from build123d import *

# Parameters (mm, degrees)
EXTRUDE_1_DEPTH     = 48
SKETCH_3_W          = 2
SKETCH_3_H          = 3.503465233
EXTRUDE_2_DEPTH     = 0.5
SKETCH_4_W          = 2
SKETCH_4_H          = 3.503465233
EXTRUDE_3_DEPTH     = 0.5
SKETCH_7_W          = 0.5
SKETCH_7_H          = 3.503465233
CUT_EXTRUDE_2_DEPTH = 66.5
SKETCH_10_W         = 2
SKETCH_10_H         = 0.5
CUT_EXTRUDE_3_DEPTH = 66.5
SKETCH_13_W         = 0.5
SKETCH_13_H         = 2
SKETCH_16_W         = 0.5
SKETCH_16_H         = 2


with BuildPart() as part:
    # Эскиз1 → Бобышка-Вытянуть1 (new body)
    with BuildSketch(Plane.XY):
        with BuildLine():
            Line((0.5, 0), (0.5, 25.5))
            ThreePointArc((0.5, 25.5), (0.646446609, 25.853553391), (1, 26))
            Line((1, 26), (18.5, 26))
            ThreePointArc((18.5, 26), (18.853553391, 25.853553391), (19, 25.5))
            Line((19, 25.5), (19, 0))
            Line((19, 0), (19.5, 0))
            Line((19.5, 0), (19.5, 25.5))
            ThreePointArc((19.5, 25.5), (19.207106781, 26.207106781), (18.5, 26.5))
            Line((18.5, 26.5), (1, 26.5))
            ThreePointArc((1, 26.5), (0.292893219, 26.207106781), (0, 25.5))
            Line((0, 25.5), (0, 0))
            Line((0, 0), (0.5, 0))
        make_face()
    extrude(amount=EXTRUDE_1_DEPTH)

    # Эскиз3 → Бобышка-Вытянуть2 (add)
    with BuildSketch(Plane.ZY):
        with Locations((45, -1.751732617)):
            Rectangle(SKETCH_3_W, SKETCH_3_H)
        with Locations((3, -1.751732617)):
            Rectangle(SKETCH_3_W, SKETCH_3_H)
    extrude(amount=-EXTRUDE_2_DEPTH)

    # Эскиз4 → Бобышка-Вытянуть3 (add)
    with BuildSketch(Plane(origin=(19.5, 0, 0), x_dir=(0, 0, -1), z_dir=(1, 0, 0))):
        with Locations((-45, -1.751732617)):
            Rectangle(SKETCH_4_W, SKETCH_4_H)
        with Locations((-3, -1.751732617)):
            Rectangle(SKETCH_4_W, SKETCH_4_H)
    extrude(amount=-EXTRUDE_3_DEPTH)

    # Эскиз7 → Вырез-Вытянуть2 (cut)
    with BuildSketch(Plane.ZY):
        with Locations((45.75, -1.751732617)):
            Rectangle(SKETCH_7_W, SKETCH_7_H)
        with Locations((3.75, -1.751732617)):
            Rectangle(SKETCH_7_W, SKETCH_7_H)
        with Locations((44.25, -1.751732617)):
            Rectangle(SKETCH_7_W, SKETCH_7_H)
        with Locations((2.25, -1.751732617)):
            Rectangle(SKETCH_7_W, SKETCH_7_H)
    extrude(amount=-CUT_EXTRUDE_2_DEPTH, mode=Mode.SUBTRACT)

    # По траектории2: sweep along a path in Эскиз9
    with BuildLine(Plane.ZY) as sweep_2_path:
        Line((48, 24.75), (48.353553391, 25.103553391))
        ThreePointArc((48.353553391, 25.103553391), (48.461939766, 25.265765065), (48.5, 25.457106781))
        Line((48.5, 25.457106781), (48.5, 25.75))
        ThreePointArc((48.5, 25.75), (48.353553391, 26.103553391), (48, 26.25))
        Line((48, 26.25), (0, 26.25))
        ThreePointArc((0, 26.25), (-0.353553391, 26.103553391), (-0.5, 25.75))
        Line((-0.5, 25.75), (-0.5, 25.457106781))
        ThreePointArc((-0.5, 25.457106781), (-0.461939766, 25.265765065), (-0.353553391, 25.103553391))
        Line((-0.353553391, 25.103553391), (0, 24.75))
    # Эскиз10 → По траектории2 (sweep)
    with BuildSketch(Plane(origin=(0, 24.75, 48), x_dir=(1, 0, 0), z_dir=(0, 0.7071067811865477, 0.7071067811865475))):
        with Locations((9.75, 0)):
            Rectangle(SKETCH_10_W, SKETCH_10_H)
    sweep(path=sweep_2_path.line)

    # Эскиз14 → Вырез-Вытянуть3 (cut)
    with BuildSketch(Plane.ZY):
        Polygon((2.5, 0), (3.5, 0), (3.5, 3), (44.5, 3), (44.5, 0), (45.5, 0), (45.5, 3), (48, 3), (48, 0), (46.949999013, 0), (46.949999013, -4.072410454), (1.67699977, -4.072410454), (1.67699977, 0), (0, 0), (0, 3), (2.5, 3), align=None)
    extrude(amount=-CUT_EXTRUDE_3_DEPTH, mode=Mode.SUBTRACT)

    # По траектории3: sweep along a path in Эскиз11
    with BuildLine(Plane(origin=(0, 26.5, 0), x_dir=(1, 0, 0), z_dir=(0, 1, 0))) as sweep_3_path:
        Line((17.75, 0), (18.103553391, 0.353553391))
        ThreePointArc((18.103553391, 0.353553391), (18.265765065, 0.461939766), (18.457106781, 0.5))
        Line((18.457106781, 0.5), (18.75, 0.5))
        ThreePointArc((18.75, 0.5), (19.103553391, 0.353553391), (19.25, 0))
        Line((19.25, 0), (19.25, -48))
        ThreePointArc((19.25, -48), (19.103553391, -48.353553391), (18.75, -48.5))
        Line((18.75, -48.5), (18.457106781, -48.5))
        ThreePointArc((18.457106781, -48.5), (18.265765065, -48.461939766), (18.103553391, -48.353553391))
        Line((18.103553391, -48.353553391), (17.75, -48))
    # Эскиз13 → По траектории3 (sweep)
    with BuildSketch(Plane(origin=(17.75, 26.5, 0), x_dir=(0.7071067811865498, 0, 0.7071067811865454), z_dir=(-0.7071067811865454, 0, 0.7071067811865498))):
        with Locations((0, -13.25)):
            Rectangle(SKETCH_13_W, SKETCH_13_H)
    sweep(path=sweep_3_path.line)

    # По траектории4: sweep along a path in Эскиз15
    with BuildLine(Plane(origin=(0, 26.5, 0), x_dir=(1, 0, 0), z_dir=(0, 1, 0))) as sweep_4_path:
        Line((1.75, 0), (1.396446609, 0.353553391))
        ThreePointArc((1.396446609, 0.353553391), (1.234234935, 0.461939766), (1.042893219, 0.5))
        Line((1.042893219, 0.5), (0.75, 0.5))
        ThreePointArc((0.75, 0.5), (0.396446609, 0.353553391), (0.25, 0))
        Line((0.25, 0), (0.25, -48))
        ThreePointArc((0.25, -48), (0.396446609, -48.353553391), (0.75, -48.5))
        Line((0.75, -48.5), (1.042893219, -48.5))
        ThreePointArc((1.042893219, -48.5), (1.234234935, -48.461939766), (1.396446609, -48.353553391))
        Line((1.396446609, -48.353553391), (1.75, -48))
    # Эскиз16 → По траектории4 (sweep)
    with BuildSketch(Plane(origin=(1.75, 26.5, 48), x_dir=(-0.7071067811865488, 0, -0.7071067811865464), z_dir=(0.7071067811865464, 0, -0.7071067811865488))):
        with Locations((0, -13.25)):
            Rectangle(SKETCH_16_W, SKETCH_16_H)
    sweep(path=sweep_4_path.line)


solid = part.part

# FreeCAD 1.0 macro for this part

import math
import FreeCAD as App
import Part
import Sketcher
Q = App.Units.Quantity


def add_polygon(sketch, points):
    """Adds a closed chain of lines whose ends are joined by coincident constraints."""
    first, n = sketch.GeometryCount, len(points)
    for a, b in zip(points, points[1:] + points[:1]):
        sketch.addGeometry(Part.LineSegment(App.Vector(*a, 0), App.Vector(*b, 0)), False)
    for i in range(n):
        sketch.addConstraint(Sketcher.Constraint("Coincident", first + i, 2, first + (i + 1) % n, 1))

doc = App.newDocument("Part")
params = doc.addObject("Spreadsheet::Sheet", "Params")
for row, (alias, value) in enumerate([
    ("sketch1_radius", "1 mm"),
    ("sketch1_radius2", "0.5 mm"),
    ("sketch1_width", "17.5 mm"),
    ("sketch1_height", "25.5 mm"),
    ("pad1_length", "48 mm"),
    ("sketch2_height", "2 mm"),
    ("pad2_length", "0.5 mm"),
    ("sketch3_height", "2 mm"),
    ("pad3_length", "0.5 mm"),
    ("sketch4_height", "0.5 mm"),
    ("pocket1_length", "66.5 mm"),
    ("sketch5_width", "2 mm"),
    ("sketch5_height", "0.5 mm"),
    ("sketch6_radius", "0.5 mm"),
    ("sketch6_height", "48 mm"),
    ("sketch7_width", "3 mm"),
    ("sketch7_height", "1 mm"),
    ("sketch7_height2", "41 mm"),
    ("sketch7_height3", "2.5 mm"),
    ("sketch7_height4", "1.050001 mm"),
    ("pocket2_length", "66.5 mm"),
    ("sketch8_height", "2 mm"),
    ("sketch8_width", "0.5 mm"),
    ("sketch9_radius", "0.5 mm"),
    ("sketch9_height", "48 mm"),
    ("sketch10_height", "2 mm"),
    ("sketch10_width", "0.5 mm"),
    ("sketch11_radius", "0.5 mm"),
    ("sketch11_height", "48 mm"),
], start=1):
    params.set(f"A{row}", alias)
    params.set(f"B{row}", "=" + value)
    params.setAlias(f"B{row}", alias)

body = doc.addObject("PartDesign::Body", "Body")

sketch1 = body.newObject("Sketcher::SketchObject", "Sketch")
sketch1.AttachmentSupport = (doc.getObject("XY_Plane"), [""])
sketch1.MapMode = "FlatFace"
sketch1.addGeometry([
    Part.LineSegment(App.Vector(0.5, 0, 0), App.Vector(0.5, 25.5, 0)),
    Part.ArcOfCircle(Part.Circle(App.Vector(1, 25.5, 0), App.Vector(0, 0, 1), 0.5), math.radians(90), math.radians(180)),
    Part.LineSegment(App.Vector(1, 26, 0), App.Vector(18.5, 26, 0)),
    Part.ArcOfCircle(Part.Circle(App.Vector(18.5, 25.5, 0), App.Vector(0, 0, 1), 0.5), math.radians(0), math.radians(90)),
    Part.LineSegment(App.Vector(19, 25.5, 0), App.Vector(19, 0, 0)),
    Part.LineSegment(App.Vector(19, 0, 0), App.Vector(19.5, 0, 0)),
    Part.LineSegment(App.Vector(19.5, 0, 0), App.Vector(19.5, 25.5, 0)),
    Part.ArcOfCircle(Part.Circle(App.Vector(18.5, 25.5, 0), App.Vector(0, 0, 1), 1), math.radians(0), math.radians(90)),
    Part.LineSegment(App.Vector(18.5, 26.5, 0), App.Vector(1, 26.5, 0)),
    Part.ArcOfCircle(Part.Circle(App.Vector(1, 25.5, 0), App.Vector(0, 0, 1), 1), math.radians(90), math.radians(180)),
    Part.LineSegment(App.Vector(0, 25.5, 0), App.Vector(0, 0, 0)),
    Part.LineSegment(App.Vector(0, 0, 0), App.Vector(0.5, 0, 0)),
], False)
sketch1.addConstraint([
    Sketcher.Constraint("Tangent", 0, 2, 1, 2),
    Sketcher.Constraint("Tangent", 1, 1, 2, 1),
    Sketcher.Constraint("Tangent", 2, 2, 3, 2),
    Sketcher.Constraint("Tangent", 3, 1, 4, 1),
    Sketcher.Constraint("Coincident", 4, 2, 5, 1),
    Sketcher.Constraint("Coincident", 5, 2, 6, 1),
    Sketcher.Constraint("Tangent", 6, 2, 7, 1),
    Sketcher.Constraint("Tangent", 7, 2, 8, 1),
    Sketcher.Constraint("Tangent", 8, 2, 9, 1),
    Sketcher.Constraint("Tangent", 9, 2, 10, 1),
    Sketcher.Constraint("Coincident", 10, 2, 11, 1),
    Sketcher.Constraint("Coincident", 11, 2, 0, 1),
    Sketcher.Constraint("Vertical", 0),
    Sketcher.Constraint("Horizontal", 2),
    Sketcher.Constraint("Vertical", 4),
    Sketcher.Constraint("Horizontal", 5),
    Sketcher.Constraint("Vertical", 6),
    Sketcher.Constraint("Horizontal", 8),
    Sketcher.Constraint("Vertical", 10),
    Sketcher.Constraint("Horizontal", 11),
    Sketcher.Constraint("Coincident", 10, 2, -1, 1),
    Sketcher.Constraint("Coincident", 7, 3, 3, 3),
    Sketcher.Constraint("Coincident", 9, 3, 1, 3),
    Sketcher.Constraint("Equal", 1, 3),
    Sketcher.Constraint("PointOnObject", 4, 2, -1),
    Sketcher.Constraint("Radius", 7, Q("1 mm")),
    Sketcher.Constraint("Radius", 1, Q("0.5 mm")),
    Sketcher.Constraint("DistanceX", 2, 1, 2, 2, Q("17.5 mm")),
    Sketcher.Constraint("DistanceY", 0, 1, 0, 2, Q("25.5 mm")),
])
sketch1.setExpression("Constraints[25]", "Params.sketch1_radius")
sketch1.setExpression("Constraints[26]", "Params.sketch1_radius2")
sketch1.setExpression("Constraints[27]", "Params.sketch1_width")
sketch1.setExpression("Constraints[28]", "Params.sketch1_height")
pad1 = body.newObject("PartDesign::Pad", "Pad")
pad1.Profile = sketch1
pad1.setExpression("Length", "Params.pad1_length")

sketch2 = body.newObject("Sketcher::SketchObject", "Sketch001")
sketch2.AttachmentSupport = (doc.getObject("YZ_Plane"), [""])
sketch2.MapMode = "FlatFace"
add_polygon(sketch2, [(0, 44), (-3.5, 44), (-3.5, 46), (0, 46)])
add_polygon(sketch2, [(0, 2), (-3.5, 2), (-3.5, 4), (0, 4)])
sketch2.addConstraint([
    Sketcher.Constraint("Horizontal", 0),
    Sketcher.Constraint("Vertical", 1),
    Sketcher.Constraint("Horizontal", 2),
    Sketcher.Constraint("Vertical", 3),
    Sketcher.Constraint("Horizontal", 4),
    Sketcher.Constraint("Vertical", 5),
    Sketcher.Constraint("Horizontal", 6),
    Sketcher.Constraint("Vertical", 7),
    Sketcher.Constraint("PointOnObject", 2, 2, -2),
    Sketcher.Constraint("PointOnObject", 6, 2, -2),
    Sketcher.Constraint("Vertical", 1, 2, 4, 2),
    Sketcher.Constraint("Equal", 3, 5),
    Sketcher.Constraint("DistanceY", 1, 1, 1, 2, Q("2 mm")),
    Sketcher.Constraint("DistanceY", -1, 1, 0, 2, Q("44 mm")),
    Sketcher.Constraint("DistanceY", -1, 1, 4, 2, Q("2 mm")),
    Sketcher.Constraint("DistanceX", 0, 2, 0, 1, Q("3.503465 mm")),
])
sketch2.setExpression("Constraints[20]", "Params.sketch2_height")
pad2 = body.newObject("PartDesign::Pad", "Pad001")
pad2.Profile = sketch2
pad2.setExpression("Length", "Params.pad2_length")

sketch3 = body.newObject("Sketcher::SketchObject", "Sketch002")
sketch3.AttachmentSupport = (doc.getObject("YZ_Plane"), [""])
sketch3.MapMode = "FlatFace"
sketch3.AttachmentOffset = App.Placement(App.Vector(0, 0, 19.5), App.Rotation())
add_polygon(sketch3, [(0, 46), (-3.5, 46), (-3.5, 44), (0, 44)])
add_polygon(sketch3, [(0, 4), (-3.5, 4), (-3.5, 2), (0, 2)])
sketch3.addConstraint([
    Sketcher.Constraint("Horizontal", 0),
    Sketcher.Constraint("Vertical", 1),
    Sketcher.Constraint("Horizontal", 2),
    Sketcher.Constraint("Vertical", 3),
    Sketcher.Constraint("Horizontal", 4),
    Sketcher.Constraint("Vertical", 5),
    Sketcher.Constraint("Horizontal", 6),
    Sketcher.Constraint("Vertical", 7),
    Sketcher.Constraint("PointOnObject", 2, 2, -2),
    Sketcher.Constraint("PointOnObject", 6, 2, -2),
    Sketcher.Constraint("Vertical", 1, 2, 4, 2),
    Sketcher.Constraint("Equal", 3, 5),
    Sketcher.Constraint("DistanceY", 1, 2, 1, 1, Q("2 mm")),
    Sketcher.Constraint("DistanceY", -1, 1, 0, 2, Q("46 mm")),
    Sketcher.Constraint("DistanceY", -1, 1, 4, 2, Q("4 mm")),
    Sketcher.Constraint("DistanceX", 0, 2, 0, 1, Q("3.503465 mm")),
])
sketch3.setExpression("Constraints[20]", "Params.sketch3_height")
pad3 = body.newObject("PartDesign::Pad", "Pad002")
pad3.Profile = sketch3
pad3.setExpression("Length", "Params.pad3_length")
pad3.Reversed = True

sketch4 = body.newObject("Sketcher::SketchObject", "Sketch003")
sketch4.AttachmentSupport = (doc.getObject("YZ_Plane"), [""])
sketch4.MapMode = "FlatFace"
add_polygon(sketch4, [(0, 45.5), (-3.5, 45.5), (-3.5, 46), (0, 46)])
add_polygon(sketch4, [(0, 3.5), (-3.5, 3.5), (-3.5, 4), (0, 4)])
add_polygon(sketch4, [(0, 44), (-3.5, 44), (-3.5, 44.5), (0, 44.5)])
add_polygon(sketch4, [(0, 2), (-3.5, 2), (-3.5, 2.5), (0, 2.5)])
sketch4.addConstraint([
    Sketcher.Constraint("Horizontal", 0),
    Sketcher.Constraint("Vertical", 1),
    Sketcher.Constraint("Horizontal", 2),
    Sketcher.Constraint("Vertical", 3),
    Sketcher.Constraint("Horizontal", 4),
    Sketcher.Constraint("Vertical", 5),
    Sketcher.Constraint("Horizontal", 6),
    Sketcher.Constraint("Vertical", 7),
    Sketcher.Constraint("Horizontal", 8),
    Sketcher.Constraint("Vertical", 9),
    Sketcher.Constraint("Horizontal", 10),
    Sketcher.Constraint("Vertical", 11),
    Sketcher.Constraint("Horizontal", 12),
    Sketcher.Constraint("Vertical", 13),
    Sketcher.Constraint("Horizontal", 14),
    Sketcher.Constraint("Vertical", 15),
    Sketcher.Constraint("PointOnObject", 2, 2, -2),
    Sketcher.Constraint("PointOnObject", 6, 2, -2),
    Sketcher.Constraint("PointOnObject", 10, 2, -2),
    Sketcher.Constraint("PointOnObject", 14, 2, -2),
    Sketcher.Constraint("Vertical", 1, 2, 4, 2),
    Sketcher.Constraint("Vertical", 5, 2, 8, 2),
    Sketcher.Constraint("Vertical", 9, 2, 12, 2),
    Sketcher.Constraint("Equal", 3, 5),
    Sketcher.Constraint("Equal", 7, 9),
    Sketcher.Constraint("Equal", 11, 13),
    Sketcher.Constraint("DistanceY", 1, 1, 1, 2, Q("0.5 mm")),
    Sketcher.Constraint("DistanceY", -1, 1, 1, 2, Q("46 mm")),
    Sketcher.Constraint("DistanceY", -1, 1, 5, 2, Q("4 mm")),
    Sketcher.Constraint("DistanceY", -1, 1, 8, 2, Q("44 mm")),
    Sketcher.Constraint("DistanceY", -1, 1, 12, 2, Q("2 mm")),
    Sketcher.Constraint("DistanceX", 0, 2, 0, 1, Q("3.503465 mm")),
])
sketch4.setExpression("Constraints[42]", "Params.sketch4_height")
pocket1 = body.newObject("PartDesign::Pocket", "Pocket")
pocket1.Profile = sketch4
pocket1.setExpression("Length", "Params.pocket1_length")
pocket1.Reversed = True

sketch5 = body.newObject("Sketcher::SketchObject", "Sketch004")
sketch5.Placement = App.Placement(App.Vector(0, 24.75, 48), App.Rotation(App.Vector(1, 0, 0), App.Vector(0, 0.707106781, -0.707106781), App.Vector(0, 0.707106781, 0.707106781), "ZXY"))
add_polygon(sketch5, [(8.8, 0.2), (8.8, -0.2), (10.8, -0.2), (10.8, 0.2)])
sketch5.addConstraint([
    Sketcher.Constraint("Vertical", 0),
    Sketcher.Constraint("Horizontal", 1),
    Sketcher.Constraint("Vertical", 2),
    Sketcher.Constraint("Horizontal", 3),
    Sketcher.Constraint("DistanceX", 1, 1, 1, 2, Q("2 mm")),
    Sketcher.Constraint("DistanceY", 0, 2, 0, 1, Q("0.5 mm")),
    Sketcher.Constraint("DistanceX", -1, 1, 0, 2, Q("8.75 mm")),
    Sketcher.Constraint("DistanceY", 0, 2, -1, 1, Q("0.25 mm")),
])
sketch5.setExpression("Constraints[8]", "Params.sketch5_width")
sketch5.setExpression("Constraints[9]", "Params.sketch5_height")

sketch6 = body.newObject("Sketcher::SketchObject", "Sketch005")
sketch6.AttachmentSupport = (doc.getObject("YZ_Plane"), [""])
sketch6.MapMode = "FlatFace"
sketch6.addGeometry([
    Part.LineSegment(App.Vector(24.75, 48, 0), App.Vector(25.1, 48.35, 0)),
    Part.ArcOfCircle(Part.Circle(App.Vector(25.46, 48, 0), App.Vector(0, 0, 1), 0.5), math.radians(90), math.radians(135)),
    Part.LineSegment(App.Vector(25.46, 48.5, 0), App.Vector(25.75, 48.5, 0)),
    Part.ArcOfCircle(Part.Circle(App.Vector(25.75, 48, 0), App.Vector(0, 0, 1), 0.5), math.radians(0), math.radians(90)),
    Part.LineSegment(App.Vector(26.25, 48, 0), App.Vector(26.25, 0, 0)),
    Part.ArcOfCircle(Part.Circle(App.Vector(25.75, 0, 0), App.Vector(0, 0, 1), 0.5), math.radians(-90), math.radians(0)),
    Part.LineSegment(App.Vector(25.75, -0.5, 0), App.Vector(25.46, -0.5, 0)),
    Part.ArcOfCircle(Part.Circle(App.Vector(25.46, 0, 0), App.Vector(0, 0, 1), 0.5), math.radians(-135), math.radians(-90)),
    Part.LineSegment(App.Vector(25.1, -0.35, 0), App.Vector(24.75, 0, 0)),
], False)
sketch6.addConstraint([
    Sketcher.Constraint("Tangent", 0, 2, 1, 2),
    Sketcher.Constraint("Tangent", 1, 1, 2, 1),
    Sketcher.Constraint("Tangent", 2, 2, 3, 2),
    Sketcher.Constraint("Tangent", 3, 1, 4, 1),
    Sketcher.Constraint("Tangent", 4, 2, 5, 2),
    Sketcher.Constraint("Tangent", 5, 1, 6, 1),
    Sketcher.Constraint("Tangent", 6, 2, 7, 2),
    Sketcher.Constraint("Tangent", 7, 1, 8, 1),
    Sketcher.Constraint("Horizontal", 2),
    Sketcher.Constraint("Vertical", 4),
    Sketcher.Constraint("Horizontal", 6),
    Sketcher.Constraint("Equal", 1, 3),
    Sketcher.Constraint("Equal", 3, 5),
    Sketcher.Constraint("Equal", 5, 7),
    Sketcher.Constraint("PointOnObject", 5, 3, -1),
    Sketcher.Constraint("PointOnObject", 8, 2, -1),
    Sketcher.Constraint("Perpendicular", 0, 8),
    Sketcher.Constraint("Horizontal", 3, 3, 0, 1),
    Sketcher.Constraint("Vertical", 1, 3, 7, 3),
    Sketcher.Constraint("Vertical", 0, 2, 7, 1),
    Sketcher.Constraint("Radius", 1, Q("0.5 mm")),
    Sketcher.Constraint("DistanceY", 4, 2, 4, 1, Q("48 mm")),
    Sketcher.Constraint("DistanceX", 0, 1, 3, 3, Q("1 mm")),
    Sketcher.Constraint("DistanceX", -1, 1, 3, 3, Q("25.75 mm")),
])
sketch6.setExpression("Constraints[20]", "Params.sketch6_radius")
sketch6.setExpression("Constraints[21]", "Params.sketch6_height")
doc.recompute()

additivepipe = body.newObject("PartDesign::AdditivePipe", "AdditivePipe")
additivepipe.Profile = sketch5
additivepipe.Spine = (sketch6, ["Edge1", "Edge2", "Edge3", "Edge4", "Edge5", "Edge6", "Edge7", "Edge8", "Edge9"])

sketch7 = body.newObject("Sketcher::SketchObject", "Sketch006")
sketch7.AttachmentSupport = (doc.getObject("YZ_Plane"), [""])
sketch7.MapMode = "FlatFace"
add_polygon(sketch7, [(0, 3.5), (0, 2.5), (3, 2.5), (3, 0), (0, 0), (0, 1.7), (-4.1, 1.7), (-4.1, 46.9), (0, 46.9), (0, 48), (3, 48), (3, 45.5), (0, 45.5), (0, 44.5), (3, 44.5), (3, 3.5)])
sketch7.addConstraint([
    Sketcher.Constraint("Vertical", 0),
    Sketcher.Constraint("Horizontal", 1),
    Sketcher.Constraint("Vertical", 2),
    Sketcher.Constraint("Horizontal", 3),
    Sketcher.Constraint("Vertical", 4),
    Sketcher.Constraint("Horizontal", 5),
    Sketcher.Constraint("Vertical", 6),
    Sketcher.Constraint("Horizontal", 7),
    Sketcher.Constraint("Vertical", 8),
    Sketcher.Constraint("Horizontal", 9),
    Sketcher.Constraint("Vertical", 10),
    Sketcher.Constraint("Horizontal", 11),
    Sketcher.Constraint("Vertical", 12),
    Sketcher.Constraint("Horizontal", 13),
    Sketcher.Constraint("Vertical", 14),
    Sketcher.Constraint("Horizontal", 15),
    Sketcher.Constraint("Coincident", 3, 2, -1, 1),
    Sketcher.Constraint("PointOnObject", 0, 2, -2),
    Sketcher.Constraint("PointOnObject", 7, 2, -2),
    Sketcher.Constraint("PointOnObject", 11, 2, -2),
    Sketcher.Constraint("Vertical", 2, 2, 9, 2),
    Sketcher.Constraint("Vertical", 10, 2, 13, 2),
    Sketcher.Constraint("Equal", 2, 10),
    Sketcher.Constraint("Equal", 0, 12),
    Sketcher.Constraint("DistanceX", 1, 1, 1, 2, Q("3 mm")),
    Sketcher.Constraint("DistanceY", 0, 2, 0, 1, Q("1 mm")),
    Sketcher.Constraint("DistanceY", 14, 2, 14, 1, Q("41 mm")),
    Sketcher.Constraint("DistanceY", 2, 2, 2, 1, Q("2.5 mm")),
    Sketcher.Constraint("DistanceY", 8, 1, 8, 2, Q("1.050001 mm")),
    Sketcher.Constraint("DistanceY", 4, 1, 4, 2, Q("1.677 mm")),
    Sketcher.Constraint("DistanceX", 5, 2, 5, 1, Q("4.07241 mm")),
])
sketch7.setExpression("Constraints[40]", "Params.sketch7_width")
sketch7.setExpression("Constraints[41]", "Params.sketch7_height")
sketch7.setExpression("Constraints[42]", "Params.sketch7_height2")
sketch7.setExpression("Constraints[43]", "Params.sketch7_height3")
sketch7.setExpression("Constraints[44]", "Params.sketch7_height4")
pocket2 = body.newObject("PartDesign::Pocket", "Pocket001")
pocket2.Profile = sketch7
pocket2.setExpression("Length", "Params.pocket2_length")
pocket2.Reversed = True

sketch8 = body.newObject("Sketcher::SketchObject", "Sketch007")
sketch8.Placement = App.Placement(App.Vector(17.75, 26.5, 0), App.Rotation(App.Vector(0.707106781, 0, 0.707106781), App.Vector(0, 0.999999999, 0), App.Vector(-0.707106781, 0, 0.707106781), "ZXY"))
add_polygon(sketch8, [(-0.2, -12.2), (-0.2, -14.2), (0.2, -14.2), (0.2, -12.2)])
sketch8.addConstraint([
    Sketcher.Constraint("Vertical", 0),
    Sketcher.Constraint("Horizontal", 1),
    Sketcher.Constraint("Vertical", 2),
    Sketcher.Constraint("Horizontal", 3),
    Sketcher.Constraint("DistanceY", 0, 2, 0, 1, Q("2 mm")),
    Sketcher.Constraint("DistanceX", 1, 1, 1, 2, Q("0.5 mm")),
    Sketcher.Constraint("DistanceX", 0, 2, -1, 1, Q("0.25 mm")),
    Sketcher.Constraint("DistanceY", 0, 2, -1, 1, Q("14.25 mm")),
])
sketch8.setExpression("Constraints[8]", "Params.sketch8_height")
sketch8.setExpression("Constraints[9]", "Params.sketch8_width")

sketch9 = body.newObject("Sketcher::SketchObject", "Sketch008")
sketch9.AttachmentSupport = (doc.getObject("XZ_Plane"), [""])
sketch9.MapMode = "FlatFace"
sketch9.AttachmentOffset = App.Placement(App.Vector(0, 0, -26.5), App.Rotation())
sketch9.addGeometry([
    Part.LineSegment(App.Vector(17.75, 0, 0), App.Vector(18.1, -0.35, 0)),
    Part.ArcOfCircle(Part.Circle(App.Vector(18.46, 0, 0), App.Vector(0, 0, 1), 0.5), math.radians(-135), math.radians(-90)),
    Part.LineSegment(App.Vector(18.46, -0.5, 0), App.Vector(18.75, -0.5, 0)),
    Part.ArcOfCircle(Part.Circle(App.Vector(18.75, 0, 0), App.Vector(0, 0, 1), 0.5), math.radians(-90), math.radians(0)),
    Part.LineSegment(App.Vector(19.25, 0, 0), App.Vector(19.25, 48, 0)),
    Part.ArcOfCircle(Part.Circle(App.Vector(18.75, 48, 0), App.Vector(0, 0, 1), 0.5), math.radians(0), math.radians(90)),
    Part.LineSegment(App.Vector(18.75, 48.5, 0), App.Vector(18.46, 48.5, 0)),
    Part.ArcOfCircle(Part.Circle(App.Vector(18.46, 48, 0), App.Vector(0, 0, 1), 0.5), math.radians(90), math.radians(135)),
    Part.LineSegment(App.Vector(18.1, 48.35, 0), App.Vector(17.75, 48, 0)),
], False)
sketch9.addConstraint([
    Sketcher.Constraint("Tangent", 0, 2, 1, 1),
    Sketcher.Constraint("Tangent", 1, 2, 2, 1),
    Sketcher.Constraint("Tangent", 2, 2, 3, 1),
    Sketcher.Constraint("Tangent", 3, 2, 4, 1),
    Sketcher.Constraint("Tangent", 4, 2, 5, 1),
    Sketcher.Constraint("Tangent", 5, 2, 6, 1),
    Sketcher.Constraint("Tangent", 6, 2, 7, 1),
    Sketcher.Constraint("Tangent", 7, 2, 8, 1),
    Sketcher.Constraint("Horizontal", 2),
    Sketcher.Constraint("Vertical", 4),
    Sketcher.Constraint("Horizontal", 6),
    Sketcher.Constraint("Equal", 1, 3),
    Sketcher.Constraint("Equal", 3, 5),
    Sketcher.Constraint("Equal", 5, 7),
    Sketcher.Constraint("PointOnObject", 1, 3, -1),
    Sketcher.Constraint("PointOnObject", 0, 1, -1),
    Sketcher.Constraint("Perpendicular", 0, 8),
    Sketcher.Constraint("Horizontal", 4, 2, 8, 2),
    Sketcher.Constraint("Vertical", 1, 3, 7, 3),
    Sketcher.Constraint("Vertical", 0, 2, 7, 2),
    Sketcher.Constraint("Radius", 1, Q("0.5 mm")),
    Sketcher.Constraint("DistanceY", 4, 1, 4, 2, Q("48 mm")),
    Sketcher.Constraint("DistanceX", 0, 1, 3, 3, Q("1 mm")),
    Sketcher.Constraint("DistanceX", -1, 1, 3, 3, Q("18.75 mm")),
])
sketch9.setExpression("Constraints[20]", "Params.sketch9_radius")
sketch9.setExpression("Constraints[21]", "Params.sketch9_height")
doc.recompute()

additivepipe2 = body.newObject("PartDesign::AdditivePipe", "AdditivePipe001")
additivepipe2.Profile = sketch8
additivepipe2.Spine = (sketch9, ["Edge1", "Edge2", "Edge3", "Edge4", "Edge5", "Edge6", "Edge7", "Edge8", "Edge9"])

sketch10 = body.newObject("Sketcher::SketchObject", "Sketch009")
sketch10.Placement = App.Placement(App.Vector(1.75, 26.5, 48), App.Rotation(App.Vector(-0.707106781, 0, -0.707106781), App.Vector(0, 0.999999999, 0), App.Vector(0.707106781, 0, -0.707106781), "ZXY"))
add_polygon(sketch10, [(-0.2, -12.2), (-0.2, -14.2), (0.2, -14.2), (0.2, -12.2)])
sketch10.addConstraint([
    Sketcher.Constraint("Vertical", 0),
    Sketcher.Constraint("Horizontal", 1),
    Sketcher.Constraint("Vertical", 2),
    Sketcher.Constraint("Horizontal", 3),
    Sketcher.Constraint("DistanceY", 0, 2, 0, 1, Q("2 mm")),
    Sketcher.Constraint("DistanceX", 1, 1, 1, 2, Q("0.5 mm")),
    Sketcher.Constraint("DistanceX", 0, 2, -1, 1, Q("0.25 mm")),
    Sketcher.Constraint("DistanceY", 0, 2, -1, 1, Q("14.25 mm")),
])
sketch10.setExpression("Constraints[8]", "Params.sketch10_height")
sketch10.setExpression("Constraints[9]", "Params.sketch10_width")

sketch11 = body.newObject("Sketcher::SketchObject", "Sketch010")
sketch11.AttachmentSupport = (doc.getObject("XZ_Plane"), [""])
sketch11.MapMode = "FlatFace"
sketch11.AttachmentOffset = App.Placement(App.Vector(0, 0, -26.5), App.Rotation())
sketch11.addGeometry([
    Part.LineSegment(App.Vector(1.75, 0, 0), App.Vector(1.4, -0.35, 0)),
    Part.ArcOfCircle(Part.Circle(App.Vector(1.04, 0, 0), App.Vector(0, 0, 1), 0.5), math.radians(-90), math.radians(-45)),
    Part.LineSegment(App.Vector(1.04, -0.5, 0), App.Vector(0.75, -0.5, 0)),
    Part.ArcOfCircle(Part.Circle(App.Vector(0.75, 0, 0), App.Vector(0, 0, 1), 0.5), math.radians(180), math.radians(270)),
    Part.LineSegment(App.Vector(0.25, 0, 0), App.Vector(0.25, 48, 0)),
    Part.ArcOfCircle(Part.Circle(App.Vector(0.75, 48, 0), App.Vector(0, 0, 1), 0.5), math.radians(90), math.radians(180)),
    Part.LineSegment(App.Vector(0.75, 48.5, 0), App.Vector(1.04, 48.5, 0)),
    Part.ArcOfCircle(Part.Circle(App.Vector(1.04, 48, 0), App.Vector(0, 0, 1), 0.5), math.radians(45), math.radians(90)),
    Part.LineSegment(App.Vector(1.4, 48.35, 0), App.Vector(1.75, 48, 0)),
], False)
sketch11.addConstraint([
    Sketcher.Constraint("Tangent", 0, 2, 1, 2),
    Sketcher.Constraint("Tangent", 1, 1, 2, 1),
    Sketcher.Constraint("Tangent", 2, 2, 3, 2),
    Sketcher.Constraint("Tangent", 3, 1, 4, 1),
    Sketcher.Constraint("Tangent", 4, 2, 5, 2),
    Sketcher.Constraint("Tangent", 5, 1, 6, 1),
    Sketcher.Constraint("Tangent", 6, 2, 7, 2),
    Sketcher.Constraint("Tangent", 7, 1, 8, 1),
    Sketcher.Constraint("Horizontal", 2),
    Sketcher.Constraint("Vertical", 4),
    Sketcher.Constraint("Horizontal", 6),
    Sketcher.Constraint("Equal", 1, 3),
    Sketcher.Constraint("Equal", 3, 5),
    Sketcher.Constraint("Equal", 5, 7),
    Sketcher.Constraint("PointOnObject", 1, 3, -1),
    Sketcher.Constraint("PointOnObject", 0, 1, -1),
    Sketcher.Constraint("Perpendicular", 0, 8),
    Sketcher.Constraint("Horizontal", 4, 2, 8, 2),
    Sketcher.Constraint("Vertical", 1, 3, 7, 3),
    Sketcher.Constraint("Vertical", 0, 2, 7, 1),
    Sketcher.Constraint("Radius", 1, Q("0.5 mm")),
    Sketcher.Constraint("DistanceY", 4, 1, 4, 2, Q("48 mm")),
    Sketcher.Constraint("DistanceX", 3, 3, 0, 1, Q("1 mm")),
    Sketcher.Constraint("DistanceX", -1, 1, 3, 3, Q("0.75 mm")),
])
sketch11.setExpression("Constraints[20]", "Params.sketch11_radius")
sketch11.setExpression("Constraints[21]", "Params.sketch11_height")
doc.recompute()

additivepipe3 = body.newObject("PartDesign::AdditivePipe", "AdditivePipe002")
additivepipe3.Profile = sketch10
additivepipe3.Spine = (sketch11, ["Edge1", "Edge2", "Edge3", "Edge4", "Edge5", "Edge6", "Edge7", "Edge8", "Edge9"])

doc.recompute()
